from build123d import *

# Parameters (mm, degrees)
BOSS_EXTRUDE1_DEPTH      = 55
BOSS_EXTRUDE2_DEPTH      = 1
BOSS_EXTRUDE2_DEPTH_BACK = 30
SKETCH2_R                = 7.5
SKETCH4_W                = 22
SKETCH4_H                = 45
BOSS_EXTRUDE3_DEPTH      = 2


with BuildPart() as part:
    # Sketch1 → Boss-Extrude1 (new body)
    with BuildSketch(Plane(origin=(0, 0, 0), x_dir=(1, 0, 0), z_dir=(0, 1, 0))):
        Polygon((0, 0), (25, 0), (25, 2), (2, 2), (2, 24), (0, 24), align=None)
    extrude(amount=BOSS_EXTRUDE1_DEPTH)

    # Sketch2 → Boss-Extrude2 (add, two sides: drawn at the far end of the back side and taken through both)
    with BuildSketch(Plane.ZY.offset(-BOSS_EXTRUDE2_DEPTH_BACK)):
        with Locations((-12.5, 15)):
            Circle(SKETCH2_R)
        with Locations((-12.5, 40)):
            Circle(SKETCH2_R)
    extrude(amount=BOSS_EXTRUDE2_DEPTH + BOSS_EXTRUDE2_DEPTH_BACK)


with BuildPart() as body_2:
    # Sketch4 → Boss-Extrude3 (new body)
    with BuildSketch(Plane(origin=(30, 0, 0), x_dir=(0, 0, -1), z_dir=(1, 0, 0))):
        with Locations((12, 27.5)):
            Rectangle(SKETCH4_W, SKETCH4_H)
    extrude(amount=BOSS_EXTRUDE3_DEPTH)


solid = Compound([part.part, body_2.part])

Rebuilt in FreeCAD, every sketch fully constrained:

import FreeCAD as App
import Part
import Sketcher
from FreeCAD import Vector
Q = App.Units.Quantity

doc = App.newDocument("Part")
body = doc.addObject("PartDesign::Body", "Body")

# Sketch on XZ plane
sketch1 = body.newObject("Sketcher::SketchObject", "Sketch")
sketch1.AttachmentSupport = (doc.getObject("XZ_Plane"), [""])
sketch1.MapMode = "FlatFace"
sketch1.addGeometry([
    Part.LineSegment(Vector(0, 0, 0), Vector(25, 0, 0)),  # 0
    Part.LineSegment(Vector(25, 0, 0), Vector(25, -2, 0)),  # 1
    Part.LineSegment(Vector(25, -2, 0), Vector(2, -2, 0)),  # 2
    Part.LineSegment(Vector(2, -2, 0), Vector(2, -24, 0)),  # 3
    Part.LineSegment(Vector(2, -24, 0), Vector(0, -24, 0)),  # 4
    Part.LineSegment(Vector(0, -24, 0), Vector(0, 0, 0)),  # 5
], False)
sketch1.addConstraint([
    Sketcher.Constraint("Coincident", 0, 2, 1, 1),
    Sketcher.Constraint("Coincident", 1, 2, 2, 1),
    Sketcher.Constraint("Coincident", 2, 2, 3, 1),
    Sketcher.Constraint("Coincident", 3, 2, 4, 1),
    Sketcher.Constraint("Coincident", 4, 2, 5, 1),
    Sketcher.Constraint("Coincident", 5, 2, 0, 1),
    Sketcher.Constraint("Horizontal", 0),
    Sketcher.Constraint("Vertical", 1),
    Sketcher.Constraint("Horizontal", 2),
    Sketcher.Constraint("Vertical", 3),
    Sketcher.Constraint("Horizontal", 4),
    Sketcher.Constraint("Vertical", 5),
    Sketcher.Constraint("Coincident", 5, 2, -1, 1),
    Sketcher.Constraint("Equal", 4, 1),
    Sketcher.Constraint("DistanceX", 0, 1, 0, 2, Q("25 mm")),
    Sketcher.Constraint("DistanceX", 2, 2, 2, 1, Q("23 mm")),
    Sketcher.Constraint("DistanceY", 3, 2, 3, 1, Q("22 mm")),
])
pad1 = body.newObject("PartDesign::Pad", "Pad")
pad1.Profile = sketch1
pad1.Length = 55
pad1.Reversed = True

# Sketch on YZ plane
sketch2 = body.newObject("Sketcher::SketchObject", "Sketch001")
sketch2.AttachmentSupport = (doc.getObject("YZ_Plane"), [""])
sketch2.MapMode = "FlatFace"
sketch2.addGeometry([
    Part.Circle(Vector(15, -12, 0), Vector(0, 0, 1), 8),
    Part.Circle(Vector(40, -12, 0), Vector(0, 0, 1), 8),
], False)
sketch2.addConstraint([
    Sketcher.Constraint("Equal", 0, 1),
    Sketcher.Constraint("Horizontal", 0, 3, 1, 3),
    Sketcher.Constraint("Diameter", 0, Q("15 mm")),
    Sketcher.Constraint("DistanceX", -1, 1, 0, 3, Q("15 mm")),
    Sketcher.Constraint("DistanceX", -1, 1, 1, 3, Q("40 mm")),
    Sketcher.Constraint("DistanceY", 0, 3, -1, 1, Q("12.5 mm")),
])
pad2 = body.newObject("PartDesign::Pad", "Pad001")
pad2.Profile = sketch2
pad2.Type = "TwoLengths"
pad2.Length = 1
pad2.Length2 = 30
pad2.Reversed = True
body2 = doc.addObject("PartDesign::Body", "Body001")

# Sketch on YZ plane
sketch3 = body2.newObject("Sketcher::SketchObject", "Sketch002")
sketch3.AttachmentSupport = (doc.getObject("YZ_Plane001"), [""])
sketch3.MapMode = "FlatFace"
sketch3.AttachmentOffset = App.Placement(Vector(0, 0, 30), App.Rotation())
sketch3.addGeometry([
    Part.LineSegment(Vector(50, -1, 0), Vector(5, -1, 0)),
    Part.LineSegment(Vector(5, -1, 0), Vector(5, -23, 0)),
    Part.LineSegment(Vector(5, -23, 0), Vector(50, -23, 0)),
    Part.LineSegment(Vector(50, -23, 0), Vector(50, -1, 0)),
], False)
sketch3.addConstraint([
    Sketcher.Constraint("Coincident", 0, 2, 1, 1),
    Sketcher.Constraint("Coincident", 1, 2, 2, 1),
    Sketcher.Constraint("Coincident", 2, 2, 3, 1),
    Sketcher.Constraint("Coincident", 3, 2, 0, 1),
    Sketcher.Constraint("Horizontal", 0),
    Sketcher.Constraint("Vertical", 1),
    Sketcher.Constraint("Horizontal", 2),
    Sketcher.Constraint("Vertical", 3),
    Sketcher.Constraint("DistanceX", 0, 2, 0, 1, Q("45 mm")),
    Sketcher.Constraint("DistanceY", 1, 2, 1, 1, Q("22 mm")),
    Sketcher.Constraint("DistanceX", -1, 1, 0, 2, Q("5 mm")),
    Sketcher.Constraint("DistanceY", 0, 2, -1, 1, Q("1 mm")),
])
pad3 = body2.newObject("PartDesign::Pad", "Pad002")
pad3.Profile = sketch3
pad3.Length = 2

doc.recompute()
